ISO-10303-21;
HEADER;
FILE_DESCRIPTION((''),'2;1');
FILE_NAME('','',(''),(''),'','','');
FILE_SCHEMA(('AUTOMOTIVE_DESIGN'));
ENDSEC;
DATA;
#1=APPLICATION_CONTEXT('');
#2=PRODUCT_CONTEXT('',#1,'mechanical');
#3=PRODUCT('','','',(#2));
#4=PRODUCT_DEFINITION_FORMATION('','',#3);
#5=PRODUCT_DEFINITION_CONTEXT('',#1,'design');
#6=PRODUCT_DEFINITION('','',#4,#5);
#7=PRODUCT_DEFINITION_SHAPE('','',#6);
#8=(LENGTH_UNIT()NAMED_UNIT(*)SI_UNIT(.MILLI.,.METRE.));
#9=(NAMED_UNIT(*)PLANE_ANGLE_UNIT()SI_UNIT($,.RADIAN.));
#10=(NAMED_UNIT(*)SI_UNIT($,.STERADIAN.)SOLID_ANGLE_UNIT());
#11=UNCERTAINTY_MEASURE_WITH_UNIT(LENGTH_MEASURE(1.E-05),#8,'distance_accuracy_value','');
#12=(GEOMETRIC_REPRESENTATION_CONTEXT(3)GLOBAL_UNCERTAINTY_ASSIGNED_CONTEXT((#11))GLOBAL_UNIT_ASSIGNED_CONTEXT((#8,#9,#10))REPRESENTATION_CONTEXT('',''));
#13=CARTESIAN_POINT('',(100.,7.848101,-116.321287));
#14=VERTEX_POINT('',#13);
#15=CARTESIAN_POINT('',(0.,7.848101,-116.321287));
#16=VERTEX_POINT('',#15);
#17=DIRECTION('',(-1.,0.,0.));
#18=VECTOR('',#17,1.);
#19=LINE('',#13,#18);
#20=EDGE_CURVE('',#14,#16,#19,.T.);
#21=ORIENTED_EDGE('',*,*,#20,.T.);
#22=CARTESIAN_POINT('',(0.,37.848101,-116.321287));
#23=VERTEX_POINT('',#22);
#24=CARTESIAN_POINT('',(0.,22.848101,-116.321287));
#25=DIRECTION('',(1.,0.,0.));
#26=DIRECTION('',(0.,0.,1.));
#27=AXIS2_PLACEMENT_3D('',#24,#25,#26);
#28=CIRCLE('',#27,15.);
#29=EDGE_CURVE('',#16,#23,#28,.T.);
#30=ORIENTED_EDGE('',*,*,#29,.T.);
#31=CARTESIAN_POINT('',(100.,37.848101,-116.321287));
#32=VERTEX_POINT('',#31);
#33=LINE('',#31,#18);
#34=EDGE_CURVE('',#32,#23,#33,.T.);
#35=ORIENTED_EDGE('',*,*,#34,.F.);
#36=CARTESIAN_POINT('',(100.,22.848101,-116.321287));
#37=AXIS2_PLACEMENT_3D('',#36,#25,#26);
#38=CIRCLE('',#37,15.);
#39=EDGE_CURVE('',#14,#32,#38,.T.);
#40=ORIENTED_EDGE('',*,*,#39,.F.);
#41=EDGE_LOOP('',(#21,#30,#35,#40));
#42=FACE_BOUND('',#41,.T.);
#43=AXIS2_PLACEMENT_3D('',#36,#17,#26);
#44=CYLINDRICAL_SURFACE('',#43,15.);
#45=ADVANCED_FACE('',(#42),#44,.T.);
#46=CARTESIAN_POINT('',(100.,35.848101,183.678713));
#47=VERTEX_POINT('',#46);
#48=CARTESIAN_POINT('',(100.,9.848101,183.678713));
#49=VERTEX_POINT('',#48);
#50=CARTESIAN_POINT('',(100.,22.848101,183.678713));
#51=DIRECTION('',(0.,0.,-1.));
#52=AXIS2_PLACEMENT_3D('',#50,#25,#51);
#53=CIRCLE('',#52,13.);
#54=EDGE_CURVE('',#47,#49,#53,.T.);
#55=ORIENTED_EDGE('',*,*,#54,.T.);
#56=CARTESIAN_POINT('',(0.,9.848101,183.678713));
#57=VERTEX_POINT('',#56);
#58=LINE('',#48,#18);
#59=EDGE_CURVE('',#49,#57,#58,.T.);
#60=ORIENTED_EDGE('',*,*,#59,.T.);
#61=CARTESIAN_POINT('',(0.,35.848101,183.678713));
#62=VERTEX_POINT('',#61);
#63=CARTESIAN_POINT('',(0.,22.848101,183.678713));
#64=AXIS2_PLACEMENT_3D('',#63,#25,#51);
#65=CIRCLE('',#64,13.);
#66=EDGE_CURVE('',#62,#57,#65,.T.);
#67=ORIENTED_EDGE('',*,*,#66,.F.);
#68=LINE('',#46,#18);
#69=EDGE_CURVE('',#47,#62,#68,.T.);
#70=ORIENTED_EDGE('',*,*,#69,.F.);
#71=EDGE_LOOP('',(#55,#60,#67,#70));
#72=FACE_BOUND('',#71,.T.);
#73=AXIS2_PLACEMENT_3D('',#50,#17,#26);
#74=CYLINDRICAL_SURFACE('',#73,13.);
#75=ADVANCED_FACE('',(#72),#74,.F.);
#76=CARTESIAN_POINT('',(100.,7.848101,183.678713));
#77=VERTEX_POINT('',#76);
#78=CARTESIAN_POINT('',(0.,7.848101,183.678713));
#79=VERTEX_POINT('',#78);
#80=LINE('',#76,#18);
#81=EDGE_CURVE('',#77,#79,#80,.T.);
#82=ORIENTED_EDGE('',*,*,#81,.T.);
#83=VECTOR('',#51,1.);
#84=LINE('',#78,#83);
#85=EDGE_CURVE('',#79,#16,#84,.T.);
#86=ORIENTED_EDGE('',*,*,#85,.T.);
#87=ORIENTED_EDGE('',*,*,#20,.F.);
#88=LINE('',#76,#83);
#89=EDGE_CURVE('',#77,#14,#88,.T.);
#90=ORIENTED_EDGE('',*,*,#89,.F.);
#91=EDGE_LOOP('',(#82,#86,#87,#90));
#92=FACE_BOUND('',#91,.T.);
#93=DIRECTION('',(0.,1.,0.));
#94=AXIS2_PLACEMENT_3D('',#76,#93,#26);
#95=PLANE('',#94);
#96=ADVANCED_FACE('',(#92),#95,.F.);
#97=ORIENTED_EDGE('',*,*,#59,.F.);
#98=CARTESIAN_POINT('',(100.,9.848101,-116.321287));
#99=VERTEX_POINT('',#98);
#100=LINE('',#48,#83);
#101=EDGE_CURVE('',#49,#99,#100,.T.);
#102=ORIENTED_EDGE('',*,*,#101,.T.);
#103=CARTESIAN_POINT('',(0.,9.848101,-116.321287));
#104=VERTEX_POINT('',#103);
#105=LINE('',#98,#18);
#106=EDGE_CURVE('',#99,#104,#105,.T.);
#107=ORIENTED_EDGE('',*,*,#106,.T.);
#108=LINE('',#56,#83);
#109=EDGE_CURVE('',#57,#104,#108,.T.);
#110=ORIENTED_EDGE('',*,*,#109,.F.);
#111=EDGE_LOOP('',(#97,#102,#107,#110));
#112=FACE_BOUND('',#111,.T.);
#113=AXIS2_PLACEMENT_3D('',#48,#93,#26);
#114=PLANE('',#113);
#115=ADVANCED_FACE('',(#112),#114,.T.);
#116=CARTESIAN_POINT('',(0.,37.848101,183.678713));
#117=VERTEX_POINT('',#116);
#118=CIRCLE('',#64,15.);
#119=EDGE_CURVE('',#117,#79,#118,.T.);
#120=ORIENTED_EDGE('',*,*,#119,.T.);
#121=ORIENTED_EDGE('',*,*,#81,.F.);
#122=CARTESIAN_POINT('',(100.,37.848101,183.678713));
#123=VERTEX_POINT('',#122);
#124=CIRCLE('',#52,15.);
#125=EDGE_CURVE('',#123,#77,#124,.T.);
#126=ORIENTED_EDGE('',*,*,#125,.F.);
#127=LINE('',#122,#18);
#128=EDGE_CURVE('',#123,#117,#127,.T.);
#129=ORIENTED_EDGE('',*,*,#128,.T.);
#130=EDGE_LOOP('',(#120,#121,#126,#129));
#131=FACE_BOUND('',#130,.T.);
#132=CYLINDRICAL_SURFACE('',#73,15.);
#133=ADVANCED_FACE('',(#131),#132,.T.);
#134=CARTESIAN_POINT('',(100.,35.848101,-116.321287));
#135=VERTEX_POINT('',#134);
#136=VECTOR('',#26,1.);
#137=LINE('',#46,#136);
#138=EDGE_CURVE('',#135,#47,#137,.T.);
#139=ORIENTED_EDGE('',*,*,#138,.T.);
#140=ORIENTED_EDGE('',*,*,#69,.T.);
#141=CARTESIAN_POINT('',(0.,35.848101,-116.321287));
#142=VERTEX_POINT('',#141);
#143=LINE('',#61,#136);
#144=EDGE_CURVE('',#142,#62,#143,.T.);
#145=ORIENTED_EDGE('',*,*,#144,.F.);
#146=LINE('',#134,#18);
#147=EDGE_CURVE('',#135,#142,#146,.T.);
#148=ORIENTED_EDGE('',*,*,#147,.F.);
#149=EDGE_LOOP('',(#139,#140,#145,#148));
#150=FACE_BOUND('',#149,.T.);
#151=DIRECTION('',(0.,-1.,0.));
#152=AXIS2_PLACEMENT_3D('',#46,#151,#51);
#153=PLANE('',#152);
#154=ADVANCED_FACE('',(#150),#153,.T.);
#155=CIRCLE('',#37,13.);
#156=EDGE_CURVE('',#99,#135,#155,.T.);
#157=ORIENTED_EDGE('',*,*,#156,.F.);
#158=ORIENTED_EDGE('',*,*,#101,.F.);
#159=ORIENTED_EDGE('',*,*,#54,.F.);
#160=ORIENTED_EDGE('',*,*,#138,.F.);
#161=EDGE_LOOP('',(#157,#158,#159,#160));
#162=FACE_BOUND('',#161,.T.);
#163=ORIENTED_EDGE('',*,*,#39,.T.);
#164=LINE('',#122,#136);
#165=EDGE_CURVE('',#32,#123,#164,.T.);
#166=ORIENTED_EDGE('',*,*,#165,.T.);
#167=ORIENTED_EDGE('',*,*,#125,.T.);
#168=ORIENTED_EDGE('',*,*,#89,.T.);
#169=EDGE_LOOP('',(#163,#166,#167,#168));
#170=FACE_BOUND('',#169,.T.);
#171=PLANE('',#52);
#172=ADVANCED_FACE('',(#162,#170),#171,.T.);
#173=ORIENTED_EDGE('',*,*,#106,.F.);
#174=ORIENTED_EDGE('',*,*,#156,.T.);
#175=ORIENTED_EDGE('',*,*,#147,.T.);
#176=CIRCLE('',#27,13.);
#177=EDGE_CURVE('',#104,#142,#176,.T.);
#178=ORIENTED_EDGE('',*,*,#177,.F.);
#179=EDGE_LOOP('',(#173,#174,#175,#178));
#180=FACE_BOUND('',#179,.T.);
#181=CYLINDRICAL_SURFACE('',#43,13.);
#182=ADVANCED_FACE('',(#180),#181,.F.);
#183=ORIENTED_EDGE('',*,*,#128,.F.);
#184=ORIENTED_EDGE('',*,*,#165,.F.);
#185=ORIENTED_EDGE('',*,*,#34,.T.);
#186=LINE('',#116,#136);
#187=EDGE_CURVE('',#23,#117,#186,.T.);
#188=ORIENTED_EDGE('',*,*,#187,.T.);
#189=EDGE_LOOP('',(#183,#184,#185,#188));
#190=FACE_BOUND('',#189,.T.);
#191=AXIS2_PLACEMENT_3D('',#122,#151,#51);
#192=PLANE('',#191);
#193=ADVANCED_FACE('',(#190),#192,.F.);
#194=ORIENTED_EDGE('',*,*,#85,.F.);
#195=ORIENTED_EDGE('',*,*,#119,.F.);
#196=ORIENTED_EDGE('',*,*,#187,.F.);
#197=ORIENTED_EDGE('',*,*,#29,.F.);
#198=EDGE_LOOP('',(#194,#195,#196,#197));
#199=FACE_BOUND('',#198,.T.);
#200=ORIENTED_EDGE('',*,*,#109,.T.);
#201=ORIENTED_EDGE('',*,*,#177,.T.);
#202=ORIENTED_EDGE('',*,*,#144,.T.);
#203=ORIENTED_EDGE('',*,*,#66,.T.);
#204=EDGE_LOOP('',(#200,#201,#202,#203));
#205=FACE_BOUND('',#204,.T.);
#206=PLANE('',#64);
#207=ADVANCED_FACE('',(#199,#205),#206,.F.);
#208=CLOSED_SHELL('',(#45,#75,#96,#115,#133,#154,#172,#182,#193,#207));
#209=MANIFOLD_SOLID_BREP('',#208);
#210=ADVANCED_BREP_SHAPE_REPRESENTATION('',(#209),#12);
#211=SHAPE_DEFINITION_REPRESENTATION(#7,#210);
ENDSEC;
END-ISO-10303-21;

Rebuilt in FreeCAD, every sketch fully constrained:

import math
import FreeCAD as App
import Part
import Sketcher

doc = App.newDocument("Part")
params = doc.addObject("Spreadsheet::Sheet", "Params")
for row, (alias, value) in enumerate([
    ("sketch1_radius", "15 mm"),
    ("sketch1_radius2", "13 mm"),
    ("sketch1_height", "300 mm"),
    ("pad1_length", "100 mm"),
], start=1):
    params.set(f"A{row}", alias)
    params.set(f"B{row}", "=" + value)
    params.setAlias(f"B{row}", alias)

body = doc.addObject("PartDesign::Body", "Body")

# Sketch on YZ plane
sketch1 = doc.addObject("Sketcher::SketchObject", "Sketch")
body.addObject(sketch1)
sketch1.AttachmentSupport = (doc.YZ_Plane, [""])
sketch1.MapMode = "FlatFace"
sketch1.addGeometry(Part.LineSegment(App.Vector(38, -116, 0), App.Vector(38, 184, 0)), False)
sketch1.addGeometry(Part.ArcOfCircle(Part.Circle(App.Vector(23, 184, 0), App.Vector(0, 0, 1), 15), math.radians(0), math.radians(180)), False)
sketch1.addGeometry(Part.LineSegment(App.Vector(8, 184, 0), App.Vector(8, -116, 0)), False)
sketch1.addGeometry(Part.ArcOfCircle(Part.Circle(App.Vector(23, -116, 0), App.Vector(0, 0, 1), 15), math.radians(180), math.radians(360)), False)
sketch1.addGeometry(Part.ArcOfCircle(Part.Circle(App.Vector(23, 184, 0), App.Vector(0, 0, 1), 13), math.radians(0), math.radians(180)), False)
sketch1.addGeometry(Part.LineSegment(App.Vector(36, 184, 0), App.Vector(36, -116, 0)), False)
sketch1.addGeometry(Part.ArcOfCircle(Part.Circle(App.Vector(23, -116, 0), App.Vector(0, 0, 1), 13), math.radians(180), math.radians(360)), False)
sketch1.addGeometry(Part.LineSegment(App.Vector(10, -116, 0), App.Vector(10, 184, 0)), False)
sketch1.addConstraint(Sketcher.Constraint("Tangent", 0, 2, 1, 1))
sketch1.addConstraint(Sketcher.Constraint("Tangent", 1, 2, 2, 1))
sketch1.addConstraint(Sketcher.Constraint("Tangent", 2, 2, 3, 1))
sketch1.addConstraint(Sketcher.Constraint("Tangent", 3, 2, 0, 1))
sketch1.addConstraint(Sketcher.Constraint("Tangent", 4, 1, 5, 1))
sketch1.addConstraint(Sketcher.Constraint("Tangent", 5, 2, 6, 2))
sketch1.addConstraint(Sketcher.Constraint("Tangent", 6, 1, 7, 1))
sketch1.addConstraint(Sketcher.Constraint("Tangent", 7, 2, 4, 2))
sketch1.addConstraint(Sketcher.Constraint("Vertical", 0))
sketch1.addConstraint(Sketcher.Constraint("Vertical", 2))
sketch1.addConstraint(Sketcher.Constraint("Vertical", 5))
sketch1.addConstraint(Sketcher.Constraint("Vertical", 7))
sketch1.addConstraint(Sketcher.Constraint("Coincident", 4, 3, 1, 3))
sketch1.addConstraint(Sketcher.Constraint("Horizontal", 6, 3, 2, 2))
sketch1.addConstraint(Sketcher.Constraint("Radius", 1, 15.0))
sketch1.addConstraint(Sketcher.Constraint("Radius", 4, 13.0))
sketch1.addConstraint(Sketcher.Constraint("DistanceY", 0, 1, 0, 2, 300.0))
sketch1.addConstraint(Sketcher.Constraint("DistanceX", -1, 1, 1, 3, 22.848101))
sketch1.addConstraint(Sketcher.Constraint("DistanceY", -1, 1, 1, 3, 183.678713))
sketch1.setExpression("Constraints[14]", "Params.sketch1_radius")
sketch1.setExpression("Constraints[15]", "Params.sketch1_radius2")
sketch1.setExpression("Constraints[16]", "Params.sketch1_height")
pad1 = doc.addObject("PartDesign::Pad", "Pad")
body.addObject(pad1)
pad1.Profile = sketch1
pad1.setExpression("Length", "Params.pad1_length")

doc.recompute()
